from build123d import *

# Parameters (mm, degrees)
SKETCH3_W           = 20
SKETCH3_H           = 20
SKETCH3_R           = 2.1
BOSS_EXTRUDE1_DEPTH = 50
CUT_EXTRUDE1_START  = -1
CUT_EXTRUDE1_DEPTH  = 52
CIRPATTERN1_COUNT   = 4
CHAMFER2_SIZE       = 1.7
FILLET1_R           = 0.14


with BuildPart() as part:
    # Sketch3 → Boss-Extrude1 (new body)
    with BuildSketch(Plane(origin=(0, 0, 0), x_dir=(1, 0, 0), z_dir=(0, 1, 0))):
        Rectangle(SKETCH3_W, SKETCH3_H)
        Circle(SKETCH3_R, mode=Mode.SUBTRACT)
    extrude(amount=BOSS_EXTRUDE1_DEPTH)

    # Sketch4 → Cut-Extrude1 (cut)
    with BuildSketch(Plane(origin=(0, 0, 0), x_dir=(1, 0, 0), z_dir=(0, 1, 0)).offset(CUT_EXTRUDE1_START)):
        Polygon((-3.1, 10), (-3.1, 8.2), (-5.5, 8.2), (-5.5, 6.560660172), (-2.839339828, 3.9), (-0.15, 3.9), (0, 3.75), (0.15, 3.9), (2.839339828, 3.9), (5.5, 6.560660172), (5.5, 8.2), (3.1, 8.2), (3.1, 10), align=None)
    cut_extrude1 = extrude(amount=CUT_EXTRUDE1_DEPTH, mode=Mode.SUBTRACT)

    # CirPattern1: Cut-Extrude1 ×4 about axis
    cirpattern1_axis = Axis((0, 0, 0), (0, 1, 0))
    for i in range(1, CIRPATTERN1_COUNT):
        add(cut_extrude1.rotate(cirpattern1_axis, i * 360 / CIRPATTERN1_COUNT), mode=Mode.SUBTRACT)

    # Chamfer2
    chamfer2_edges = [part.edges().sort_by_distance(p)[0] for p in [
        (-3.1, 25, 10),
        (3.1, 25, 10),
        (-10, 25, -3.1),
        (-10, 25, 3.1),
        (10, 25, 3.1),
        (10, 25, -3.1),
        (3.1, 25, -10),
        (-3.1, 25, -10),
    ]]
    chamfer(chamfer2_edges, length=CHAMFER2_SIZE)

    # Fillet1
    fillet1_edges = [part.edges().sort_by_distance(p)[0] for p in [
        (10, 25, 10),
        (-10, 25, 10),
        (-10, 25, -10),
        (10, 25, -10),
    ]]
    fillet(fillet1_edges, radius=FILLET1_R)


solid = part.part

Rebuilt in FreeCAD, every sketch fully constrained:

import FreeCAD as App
import Part
import Sketcher

V = App.Vector
Q = App.Units.Quantity


def edges_at(feature, points):
    """Names of the edges that pass closest to the given points."""
    edges = feature.Shape.Edges
    near = lambda p: min(range(len(edges)), key=lambda i: edges[i].distToShape(Part.Vertex(*p))[0])
    return sorted({f"Edge{near(p) + 1}" for p in points})


def add_polygon(sketch, points):
    """Adds a closed chain of lines whose ends are joined by coincident constraints."""
    first, n = sketch.GeometryCount, len(points)
    for a, b in zip(points, points[1:] + points[:1]):
        sketch.addGeometry(Part.LineSegment(App.Vector(*a, 0), App.Vector(*b, 0)), False)
    for i in range(n):
        sketch.addConstraint(Sketcher.Constraint("Coincident", first + i, 2, first + (i + 1) % n, 1))

doc = App.newDocument("Part")
body = doc.addObject("PartDesign::Body", "Body")

sketch1 = body.newObject("Sketcher::SketchObject", "Sketch")
sketch1.AttachmentSupport = (doc.getObject("XZ_Plane"), [""])
sketch1.MapMode = "FlatFace"
add_polygon(sketch1, [(-10, -10), (-10, 10), (10, 10), (10, -10)])
sketch1.addGeometry(Part.Circle(V(0, 0, 0), V(0, 0, 1), 2.1), False)
sketch1.addConstraint(Sketcher.Constraint("Vertical", 0))
sketch1.addConstraint(Sketcher.Constraint("Horizontal", 1))
sketch1.addConstraint(Sketcher.Constraint("Vertical", 2))
sketch1.addConstraint(Sketcher.Constraint("Horizontal", 3))
sketch1.addConstraint(Sketcher.Constraint("Coincident", 4, 3, -1, 1))
sketch1.addConstraint(Sketcher.Constraint("Symmetric", 0, 2, 2, 2, -1, 1))
sketch1.addConstraint(Sketcher.Constraint("Equal", 3, 0))
sketch1.addConstraint(Sketcher.Constraint("Diameter", 4, Q("4.2 mm")))
sketch1.addConstraint(Sketcher.Constraint("DistanceX", 1, 1, 1, 2, Q("20 mm")))
pad1 = body.newObject("PartDesign::Pad", "Pad")
pad1.Profile = sketch1
pad1.Length = 50
pad1.Reversed = True

sketch2 = body.newObject("Sketcher::SketchObject", "Sketch001")
sketch2.AttachmentSupport = (doc.getObject("XZ_Plane"), [""])
sketch2.MapMode = "FlatFace"
sketch2.AttachmentOffset = App.Placement(V(0, 0, 1), App.Rotation())
add_polygon(sketch2, [(-3.1, -10), (-3.1, -8.2), (-5.5, -8.2), (-5.5, -6.56066), (-2.83934, -3.9), (-0.15, -3.9), (0, -3.75), (0.15, -3.9), (2.83934, -3.9), (5.5, -6.56066), (5.5, -8.2), (3.1, -8.2), (3.1, -10)])
sketch2.addConstraint(Sketcher.Constraint("Vertical", 0))
sketch2.addConstraint(Sketcher.Constraint("Horizontal", 1))
sketch2.addConstraint(Sketcher.Constraint("Vertical", 2))
sketch2.addConstraint(Sketcher.Constraint("Horizontal", 4))
sketch2.addConstraint(Sketcher.Constraint("Horizontal", 7))
sketch2.addConstraint(Sketcher.Constraint("Vertical", 9))
sketch2.addConstraint(Sketcher.Constraint("Horizontal", 10))
sketch2.addConstraint(Sketcher.Constraint("Vertical", 11))
sketch2.addConstraint(Sketcher.Constraint("Horizontal", 12))
sketch2.addConstraint(Sketcher.Constraint("Symmetric", 4, 2, 6, 2, -2))
sketch2.addConstraint(Sketcher.Constraint("Symmetric", 2, 2, 8, 2, -2))
sketch2.addConstraint(Sketcher.Constraint("Symmetric", 0, 2, 10, 2, -2))
sketch2.addConstraint(Sketcher.Constraint("PointOnObject", 5, 2, -2))
sketch2.addConstraint(Sketcher.Constraint("Parallel", 3, 5))
sketch2.addConstraint(Sketcher.Constraint("Perpendicular", 5, 6))
sketch2.addConstraint(Sketcher.Constraint("Parallel", 6, 8))
sketch2.addConstraint(Sketcher.Constraint("DistanceX", 1, 2, 1, 1, Q("2.4 mm")))
sketch2.addConstraint(Sketcher.Constraint("DistanceX", 12, 2, 12, 1, Q("6.2 mm")))
sketch2.addConstraint(Sketcher.Constraint("DistanceY", 0, 1, 0, 2, Q("1.8 mm")))
sketch2.addConstraint(Sketcher.Constraint("DistanceY", 11, 2, -1, 1, Q("10 mm")))
sketch2.addConstraint(Sketcher.Constraint("DistanceY", 3, 2, -1, 1, Q("3.9 mm")))
sketch2.addConstraint(Sketcher.Constraint("DistanceX", 4, 2, 6, 2, Q("0.3 mm")))
sketch2.addConstraint(Sketcher.Constraint("DistanceX", 4, 1, 4, 2, Q("2.68934 mm")))
pocket1 = body.newObject("PartDesign::Pocket", "Pocket")
pocket1.Profile = sketch2
pocket1.Length = 52
doc.recompute()

polarpattern = body.newObject("PartDesign::PolarPattern", "PolarPattern")
polarpattern.Originals = [pocket1]
polarpattern.Axis = (doc.getObject("Y_Axis"), [""])
polarpattern.Angle = 360
polarpattern.Occurrences = 4
body.Tip = polarpattern
doc.recompute()

chamfer = body.newObject("PartDesign::Chamfer", "Chamfer")
chamfer.Base = (polarpattern, edges_at(polarpattern, [
    (-3.1, 25, 10),
    (3.1, 25, 10),
    (-10, 25, -3.1),
    (-10, 25, 3.1),
    (10, 25, 3.1),
    (10, 25, -3.1),
    (3.1, 25, -10),
    (-3.1, 25, -10),
]))
chamfer.Size = 1.7
doc.recompute()

fillet = body.newObject("PartDesign::Fillet", "Fillet")
fillet.Base = (chamfer, edges_at(chamfer, [
    (10, 25, 10),
    (-10, 25, 10),
    (-10, 25, -10),
    (10, 25, -10),
]))
fillet.Radius = 0.14

doc.recompute()
